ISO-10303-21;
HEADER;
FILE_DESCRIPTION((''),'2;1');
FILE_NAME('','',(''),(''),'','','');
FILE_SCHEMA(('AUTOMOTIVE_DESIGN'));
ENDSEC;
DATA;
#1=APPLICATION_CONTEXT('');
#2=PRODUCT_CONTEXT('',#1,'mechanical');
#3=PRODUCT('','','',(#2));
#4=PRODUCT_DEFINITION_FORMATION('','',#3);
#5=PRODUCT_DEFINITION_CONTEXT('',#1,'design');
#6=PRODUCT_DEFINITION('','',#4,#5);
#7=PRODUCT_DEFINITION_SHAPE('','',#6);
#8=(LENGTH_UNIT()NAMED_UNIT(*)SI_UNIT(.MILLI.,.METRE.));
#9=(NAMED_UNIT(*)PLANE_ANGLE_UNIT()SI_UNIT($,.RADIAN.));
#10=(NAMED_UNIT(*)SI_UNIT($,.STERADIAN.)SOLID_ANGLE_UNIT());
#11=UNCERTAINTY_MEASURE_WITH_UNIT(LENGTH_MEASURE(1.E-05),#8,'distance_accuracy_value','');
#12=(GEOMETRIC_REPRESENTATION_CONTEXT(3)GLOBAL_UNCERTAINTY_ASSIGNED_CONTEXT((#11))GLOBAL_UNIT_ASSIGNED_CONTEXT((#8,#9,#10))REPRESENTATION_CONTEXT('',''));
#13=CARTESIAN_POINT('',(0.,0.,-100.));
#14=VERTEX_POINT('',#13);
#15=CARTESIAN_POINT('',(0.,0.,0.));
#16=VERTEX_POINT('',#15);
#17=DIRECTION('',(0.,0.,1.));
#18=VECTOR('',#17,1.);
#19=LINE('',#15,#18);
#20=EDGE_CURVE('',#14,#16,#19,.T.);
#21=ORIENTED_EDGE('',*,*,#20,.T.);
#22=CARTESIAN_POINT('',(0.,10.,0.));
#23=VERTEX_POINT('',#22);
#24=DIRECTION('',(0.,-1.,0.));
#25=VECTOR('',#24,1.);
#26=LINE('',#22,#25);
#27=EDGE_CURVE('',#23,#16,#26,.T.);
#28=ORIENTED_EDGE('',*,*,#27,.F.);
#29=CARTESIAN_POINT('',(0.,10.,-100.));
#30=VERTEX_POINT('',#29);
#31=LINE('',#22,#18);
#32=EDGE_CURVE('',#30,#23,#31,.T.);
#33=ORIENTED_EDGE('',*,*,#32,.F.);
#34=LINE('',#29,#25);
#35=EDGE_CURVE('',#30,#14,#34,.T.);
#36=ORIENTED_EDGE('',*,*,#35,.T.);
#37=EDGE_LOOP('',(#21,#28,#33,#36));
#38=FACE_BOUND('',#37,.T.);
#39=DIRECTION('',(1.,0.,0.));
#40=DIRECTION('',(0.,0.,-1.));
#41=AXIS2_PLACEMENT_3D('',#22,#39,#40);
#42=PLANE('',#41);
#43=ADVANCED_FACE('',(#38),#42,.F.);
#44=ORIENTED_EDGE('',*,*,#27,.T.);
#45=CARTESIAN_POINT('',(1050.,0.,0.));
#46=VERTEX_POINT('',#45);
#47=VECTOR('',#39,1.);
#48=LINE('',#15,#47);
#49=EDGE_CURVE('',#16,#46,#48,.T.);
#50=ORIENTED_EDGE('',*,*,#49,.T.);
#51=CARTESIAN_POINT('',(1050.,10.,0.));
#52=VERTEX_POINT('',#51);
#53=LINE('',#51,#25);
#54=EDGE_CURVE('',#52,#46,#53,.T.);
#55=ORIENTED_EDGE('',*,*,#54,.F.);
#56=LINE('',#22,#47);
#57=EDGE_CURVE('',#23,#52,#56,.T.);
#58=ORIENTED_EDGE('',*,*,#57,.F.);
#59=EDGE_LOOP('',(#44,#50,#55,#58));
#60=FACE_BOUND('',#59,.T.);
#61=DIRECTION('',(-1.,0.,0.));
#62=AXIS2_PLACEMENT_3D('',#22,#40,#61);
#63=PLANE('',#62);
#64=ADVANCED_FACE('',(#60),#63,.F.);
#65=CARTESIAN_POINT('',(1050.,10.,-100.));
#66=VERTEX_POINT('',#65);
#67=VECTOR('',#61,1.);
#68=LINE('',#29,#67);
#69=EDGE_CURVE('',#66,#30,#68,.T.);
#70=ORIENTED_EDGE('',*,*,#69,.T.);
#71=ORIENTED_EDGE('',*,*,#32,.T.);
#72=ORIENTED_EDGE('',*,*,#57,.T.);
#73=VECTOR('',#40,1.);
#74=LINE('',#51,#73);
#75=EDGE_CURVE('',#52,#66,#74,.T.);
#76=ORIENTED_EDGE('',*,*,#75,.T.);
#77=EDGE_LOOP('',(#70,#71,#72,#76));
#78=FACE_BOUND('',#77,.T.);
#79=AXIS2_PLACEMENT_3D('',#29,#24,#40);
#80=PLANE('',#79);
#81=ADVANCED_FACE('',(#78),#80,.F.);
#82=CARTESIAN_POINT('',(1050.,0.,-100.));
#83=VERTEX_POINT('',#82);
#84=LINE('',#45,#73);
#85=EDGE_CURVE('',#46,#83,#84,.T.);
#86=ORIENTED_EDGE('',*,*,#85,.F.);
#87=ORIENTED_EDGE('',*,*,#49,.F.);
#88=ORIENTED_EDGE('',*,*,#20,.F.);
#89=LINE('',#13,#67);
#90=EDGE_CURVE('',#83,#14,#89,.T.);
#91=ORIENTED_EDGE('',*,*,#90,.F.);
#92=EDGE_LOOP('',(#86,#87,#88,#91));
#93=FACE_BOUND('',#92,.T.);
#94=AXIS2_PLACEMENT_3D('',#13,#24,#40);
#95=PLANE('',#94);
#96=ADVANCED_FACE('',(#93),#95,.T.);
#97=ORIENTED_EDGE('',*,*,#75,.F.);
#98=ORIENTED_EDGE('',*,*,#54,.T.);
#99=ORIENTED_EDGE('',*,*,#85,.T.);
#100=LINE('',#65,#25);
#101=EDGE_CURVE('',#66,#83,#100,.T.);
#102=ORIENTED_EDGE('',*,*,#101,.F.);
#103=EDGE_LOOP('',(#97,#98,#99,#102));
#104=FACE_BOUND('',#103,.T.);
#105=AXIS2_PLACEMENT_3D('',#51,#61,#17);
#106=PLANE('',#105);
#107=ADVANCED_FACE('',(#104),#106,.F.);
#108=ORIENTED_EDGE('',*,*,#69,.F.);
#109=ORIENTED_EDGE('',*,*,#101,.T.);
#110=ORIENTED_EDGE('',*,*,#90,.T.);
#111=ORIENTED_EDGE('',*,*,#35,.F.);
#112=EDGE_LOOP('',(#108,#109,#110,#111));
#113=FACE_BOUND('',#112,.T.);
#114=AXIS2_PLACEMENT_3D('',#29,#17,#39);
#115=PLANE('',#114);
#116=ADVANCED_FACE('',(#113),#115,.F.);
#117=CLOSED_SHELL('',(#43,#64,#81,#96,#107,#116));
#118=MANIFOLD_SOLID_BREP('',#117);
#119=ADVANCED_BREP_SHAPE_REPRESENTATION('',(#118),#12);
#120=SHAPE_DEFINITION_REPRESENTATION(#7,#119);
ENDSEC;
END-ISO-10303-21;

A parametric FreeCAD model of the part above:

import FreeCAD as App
import Part
import Sketcher
from FreeCAD import Vector
Q = App.Units.Quantity

doc = App.newDocument("Part")
body = doc.addObject("PartDesign::Body", "Body")

# Sketch on XZ plane
sketch1 = body.newObject("Sketcher::SketchObject", "Sketch")
sketch1.AttachmentSupport = (doc.getObject("XZ_Plane"), [""])
sketch1.MapMode = "FlatFace"
sketch1.addGeometry(Part.LineSegment(Vector(0, -100, 0), Vector(0, 0, 0)), False)
sketch1.addGeometry(Part.LineSegment(Vector(0, 0, 0), Vector(1050, 0, 0)), False)
sketch1.addGeometry(Part.LineSegment(Vector(1050, 0, 0), Vector(1050, -100, 0)), False)
sketch1.addGeometry(Part.LineSegment(Vector(1050, -100, 0), Vector(0, -100, 0)), False)
sketch1.addConstraint(Sketcher.Constraint("Coincident", 0, 2, 1, 1))
sketch1.addConstraint(Sketcher.Constraint("Coincident", 1, 2, 2, 1))
sketch1.addConstraint(Sketcher.Constraint("Coincident", 2, 2, 3, 1))
sketch1.addConstraint(Sketcher.Constraint("Coincident", 3, 2, 0, 1))
sketch1.addConstraint(Sketcher.Constraint("Vertical", 0))
sketch1.addConstraint(Sketcher.Constraint("Horizontal", 1))
sketch1.addConstraint(Sketcher.Constraint("Vertical", 2))
sketch1.addConstraint(Sketcher.Constraint("Horizontal", 3))
sketch1.addConstraint(Sketcher.Constraint("Coincident", 0, 2, -1, 1))
sketch1.addConstraint(Sketcher.Constraint("DistanceX", 1, 1, 1, 2, Q("1050 mm")))
sketch1.addConstraint(Sketcher.Constraint("DistanceY", 0, 1, 0, 2, Q("100 mm")))
pad1 = body.newObject("PartDesign::Pad", "Pad")
pad1.Profile = sketch1
pad1.Length = 10
pad1.Reversed = True

doc.recompute()
